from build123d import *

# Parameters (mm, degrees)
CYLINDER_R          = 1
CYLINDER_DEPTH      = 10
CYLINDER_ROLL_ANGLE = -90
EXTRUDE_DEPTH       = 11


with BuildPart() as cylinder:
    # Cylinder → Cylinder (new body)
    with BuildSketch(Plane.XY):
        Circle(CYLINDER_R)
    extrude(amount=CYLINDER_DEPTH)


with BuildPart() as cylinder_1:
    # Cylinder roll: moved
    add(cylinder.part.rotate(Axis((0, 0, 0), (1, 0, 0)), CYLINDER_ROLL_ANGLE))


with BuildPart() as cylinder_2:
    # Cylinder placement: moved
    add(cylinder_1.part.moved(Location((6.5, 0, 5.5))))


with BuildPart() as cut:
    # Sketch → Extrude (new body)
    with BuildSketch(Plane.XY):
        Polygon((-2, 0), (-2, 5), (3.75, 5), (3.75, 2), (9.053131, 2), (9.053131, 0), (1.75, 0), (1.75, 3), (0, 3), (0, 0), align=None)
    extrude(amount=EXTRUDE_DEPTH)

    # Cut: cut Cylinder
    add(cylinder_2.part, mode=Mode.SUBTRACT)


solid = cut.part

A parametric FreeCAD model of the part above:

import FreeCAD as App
import Part
import Sketcher
from FreeCAD import Vector
Q = App.Units.Quantity

doc = App.newDocument("Part")
params = doc.addObject("Spreadsheet::Sheet", "Params")
for row, (alias, value) in enumerate([
    ("sketch1_diameter", "2 mm"),
    ("pad1_length", "10 mm"),
    ("sketch2_width", "2 mm"),
    ("sketch2_height", "5 mm"),
    ("sketch2_width2", "1.75 mm"),
    ("pad2_length", "11 mm"),
], start=1):
    params.set(f"A{row}", alias)
    params.set(f"B{row}", "=" + value)
    params.setAlias(f"B{row}", alias)

body = doc.addObject("PartDesign::Body", "Body")

# Sketch on XY plane
sketch1 = doc.addObject("Sketcher::SketchObject", "Sketch")
body.addObject(sketch1)
sketch1.AttachmentSupport = (doc.XY_Plane, [""])
sketch1.MapMode = "FlatFace"
sketch1.addGeometry(Part.Circle(Vector(0, 0, 0), Vector(0, 0, 1), 1), False)
sketch1.addConstraint(Sketcher.Constraint("Coincident", 0, 3, -1, 1))
sketch1.addConstraint(Sketcher.Constraint("Diameter", 0, Q("2 mm")))
sketch1.setExpression("Constraints[1]", "Params.sketch1_diameter")
pad1 = doc.addObject("PartDesign::Pad", "Pad")
body.addObject(pad1)
pad1.Profile = sketch1
pad1.setExpression("Length", "Params.pad1_length")
body2 = doc.addObject("PartDesign::Body", "Body001")
doc.recompute()

body.Placement = App.Placement(Vector(0, 0, 0), App.Rotation(Vector(1, 0, 0), 270))
boolean = doc.addObject("PartDesign::Boolean", "Boolean")
body2.addObject(boolean)
boolean.Type = "Fuse"
boolean.addObjects([body])
body3 = doc.addObject("PartDesign::Body", "Body002")
doc.recompute()

body2.Placement = App.Placement(Vector(6.5, 0, 5.5), App.Rotation(Vector(0, 0, 1), 0))
boolean2 = doc.addObject("PartDesign::Boolean", "Boolean001")
body3.addObject(boolean2)
boolean2.Type = "Fuse"
boolean2.addObjects([body2])
body4 = doc.addObject("PartDesign::Body", "Body003")

# Sketch on XY plane
sketch2 = doc.addObject("Sketcher::SketchObject", "Sketch001")
body4.addObject(sketch2)
sketch2.AttachmentSupport = (doc.getObject("XY_Plane003"), [""])
sketch2.MapMode = "FlatFace"
sketch2.addGeometry(Part.LineSegment(Vector(-2, 5, 0), Vector(-2, 0, 0)), False)
sketch2.addGeometry(Part.LineSegment(Vector(-2, 0, 0), Vector(0, 0, 0)), False)
sketch2.addGeometry(Part.LineSegment(Vector(0, 0, 0), Vector(0, 3, 0)), False)
sketch2.addGeometry(Part.LineSegment(Vector(0, 3, 0), Vector(1.75, 3, 0)), False)
sketch2.addGeometry(Part.LineSegment(Vector(1.75, 3, 0), Vector(1.75, 0, 0)), False)
sketch2.addGeometry(Part.LineSegment(Vector(1.75, 0, 0), Vector(9.053131, 0, 0)), False)
sketch2.addGeometry(Part.LineSegment(Vector(9.053131, 0, 0), Vector(9.053131, 2, 0)), False)
sketch2.addGeometry(Part.LineSegment(Vector(9.053131, 2, 0), Vector(3.75, 2, 0)), False)
sketch2.addGeometry(Part.LineSegment(Vector(3.75, 2, 0), Vector(3.75, 5, 0)), False)
sketch2.addGeometry(Part.LineSegment(Vector(3.75, 5, 0), Vector(-2, 5, 0)), False)
sketch2.addConstraint(Sketcher.Constraint("Coincident", 0, 2, 1, 1))
sketch2.addConstraint(Sketcher.Constraint("Coincident", 1, 2, 2, 1))
sketch2.addConstraint(Sketcher.Constraint("Coincident", 2, 2, 3, 1))
sketch2.addConstraint(Sketcher.Constraint("Coincident", 3, 2, 4, 1))
sketch2.addConstraint(Sketcher.Constraint("Coincident", 4, 2, 5, 1))
sketch2.addConstraint(Sketcher.Constraint("Coincident", 5, 2, 6, 1))
sketch2.addConstraint(Sketcher.Constraint("Coincident", 6, 2, 7, 1))
sketch2.addConstraint(Sketcher.Constraint("Coincident", 7, 2, 8, 1))
sketch2.addConstraint(Sketcher.Constraint("Coincident", 8, 2, 9, 1))
sketch2.addConstraint(Sketcher.Constraint("Coincident", 9, 2, 0, 1))
sketch2.addConstraint(Sketcher.Constraint("Vertical", 0))
sketch2.addConstraint(Sketcher.Constraint("Horizontal", 1))
sketch2.addConstraint(Sketcher.Constraint("Vertical", 2))
sketch2.addConstraint(Sketcher.Constraint("Horizontal", 3))
sketch2.addConstraint(Sketcher.Constraint("Vertical", 4))
sketch2.addConstraint(Sketcher.Constraint("Horizontal", 5))
sketch2.addConstraint(Sketcher.Constraint("Vertical", 6))
sketch2.addConstraint(Sketcher.Constraint("Horizontal", 7))
sketch2.addConstraint(Sketcher.Constraint("Vertical", 8))
sketch2.addConstraint(Sketcher.Constraint("Horizontal", 9))
sketch2.addConstraint(Sketcher.Constraint("Coincident", 1, 2, -1, 1))
sketch2.addConstraint(Sketcher.Constraint("PointOnObject", 4, 2, -1))
sketch2.addConstraint(Sketcher.Constraint("Equal", 1, 6))
sketch2.addConstraint(Sketcher.Constraint("Equal", 4, 8))
sketch2.addConstraint(Sketcher.Constraint("DistanceX", 1, 1, 1, 2, Q("2 mm")))
sketch2.addConstraint(Sketcher.Constraint("DistanceY", 0, 2, 0, 1, Q("5 mm")))
sketch2.addConstraint(Sketcher.Constraint("DistanceX", 3, 2, 7, 2, Q("2 mm")))
sketch2.addConstraint(Sketcher.Constraint("DistanceX", 3, 1, 3, 2, Q("1.75 mm")))
sketch2.addConstraint(Sketcher.Constraint("DistanceX", 5, 1, 5, 2, Q("7.303131 mm")))
sketch2.setExpression("Constraints[24]", "Params.sketch2_width")
sketch2.setExpression("Constraints[25]", "Params.sketch2_height")
sketch2.setExpression("Constraints[27]", "Params.sketch2_width2")
pad2 = doc.addObject("PartDesign::Pad", "Pad001")
body4.addObject(pad2)
pad2.Profile = sketch2
pad2.setExpression("Length", "Params.pad2_length")
doc.recompute()

boolean3 = doc.addObject("PartDesign::Boolean", "Boolean002")
body4.addObject(boolean3)
boolean3.Type = "Cut"
boolean3.addObjects([body3])

doc.recompute()
